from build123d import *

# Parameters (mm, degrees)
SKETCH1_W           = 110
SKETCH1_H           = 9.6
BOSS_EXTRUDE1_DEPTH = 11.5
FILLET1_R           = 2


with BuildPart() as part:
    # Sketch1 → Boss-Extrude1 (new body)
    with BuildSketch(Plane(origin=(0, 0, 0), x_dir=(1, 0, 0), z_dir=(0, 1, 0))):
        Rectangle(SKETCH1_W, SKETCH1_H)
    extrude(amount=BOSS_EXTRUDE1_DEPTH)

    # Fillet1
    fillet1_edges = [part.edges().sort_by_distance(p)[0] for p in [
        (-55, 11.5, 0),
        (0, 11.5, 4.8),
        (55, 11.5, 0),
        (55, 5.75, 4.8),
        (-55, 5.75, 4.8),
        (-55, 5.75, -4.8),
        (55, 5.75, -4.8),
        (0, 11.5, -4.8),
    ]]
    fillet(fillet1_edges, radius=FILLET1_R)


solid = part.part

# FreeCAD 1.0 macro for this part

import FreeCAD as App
import Part
import Sketcher
from FreeCAD import Vector


def edges_at(feature, points):
    """Names of the edges that pass closest to the given points."""
    edges = feature.Shape.Edges
    near = lambda p: min(range(len(edges)), key=lambda i: edges[i].distToShape(Part.Vertex(*p))[0])
    return sorted({f"Edge{near(p) + 1}" for p in points})

doc = App.newDocument("Part")
body = doc.addObject("PartDesign::Body", "Body")

# Sketch on XZ plane
sketch1 = doc.addObject("Sketcher::SketchObject", "Sketch")
body.addObject(sketch1)
sketch1.AttachmentSupport = (doc.XZ_Plane, [""])
sketch1.MapMode = "FlatFace"
sketch1.addGeometry(Part.LineSegment(Vector(-55, -4.8, 0), Vector(-55, 4.8, 0)), False)
sketch1.addGeometry(Part.LineSegment(Vector(-55, 4.8, 0), Vector(55, 4.8, 0)), False)
sketch1.addGeometry(Part.LineSegment(Vector(55, 4.8, 0), Vector(55, -4.8, 0)), False)
sketch1.addGeometry(Part.LineSegment(Vector(55, -4.8, 0), Vector(-55, -4.8, 0)), False)
sketch1.addConstraint(Sketcher.Constraint("Coincident", 0, 2, 1, 1))
sketch1.addConstraint(Sketcher.Constraint("Coincident", 1, 2, 2, 1))
sketch1.addConstraint(Sketcher.Constraint("Coincident", 2, 2, 3, 1))
sketch1.addConstraint(Sketcher.Constraint("Coincident", 3, 2, 0, 1))
sketch1.addConstraint(Sketcher.Constraint("Vertical", 0))
sketch1.addConstraint(Sketcher.Constraint("Horizontal", 1))
sketch1.addConstraint(Sketcher.Constraint("Vertical", 2))
sketch1.addConstraint(Sketcher.Constraint("Horizontal", 3))
sketch1.addConstraint(Sketcher.Constraint("Symmetric", 0, 2, 2, 2, -1, 1))
sketch1.addConstraint(Sketcher.Constraint("DistanceX", 1, 1, 1, 2, 110.0))
sketch1.addConstraint(Sketcher.Constraint("DistanceY", 0, 1, 0, 2, 9.6))
pad1 = doc.addObject("PartDesign::Pad", "Pad")
body.addObject(pad1)
pad1.Profile = sketch1
pad1.Length = 11.5
pad1.Reversed = True
doc.recompute()

fillet = doc.addObject("PartDesign::Fillet", "Fillet")
body.addObject(fillet)
fillet.Base = (pad1, edges_at(pad1, [
    (-55, 11.5, 0),
    (0, 11.5, 4.8),
    (55, 11.5, 0),
    (55, 5.75, 4.8),
    (-55, 5.75, 4.8),
    (-55, 5.75, -4.8),
    (55, 5.75, -4.8),
    (0, 11.5, -4.8),
]))
fillet.Radius = 2

doc.recompute()
